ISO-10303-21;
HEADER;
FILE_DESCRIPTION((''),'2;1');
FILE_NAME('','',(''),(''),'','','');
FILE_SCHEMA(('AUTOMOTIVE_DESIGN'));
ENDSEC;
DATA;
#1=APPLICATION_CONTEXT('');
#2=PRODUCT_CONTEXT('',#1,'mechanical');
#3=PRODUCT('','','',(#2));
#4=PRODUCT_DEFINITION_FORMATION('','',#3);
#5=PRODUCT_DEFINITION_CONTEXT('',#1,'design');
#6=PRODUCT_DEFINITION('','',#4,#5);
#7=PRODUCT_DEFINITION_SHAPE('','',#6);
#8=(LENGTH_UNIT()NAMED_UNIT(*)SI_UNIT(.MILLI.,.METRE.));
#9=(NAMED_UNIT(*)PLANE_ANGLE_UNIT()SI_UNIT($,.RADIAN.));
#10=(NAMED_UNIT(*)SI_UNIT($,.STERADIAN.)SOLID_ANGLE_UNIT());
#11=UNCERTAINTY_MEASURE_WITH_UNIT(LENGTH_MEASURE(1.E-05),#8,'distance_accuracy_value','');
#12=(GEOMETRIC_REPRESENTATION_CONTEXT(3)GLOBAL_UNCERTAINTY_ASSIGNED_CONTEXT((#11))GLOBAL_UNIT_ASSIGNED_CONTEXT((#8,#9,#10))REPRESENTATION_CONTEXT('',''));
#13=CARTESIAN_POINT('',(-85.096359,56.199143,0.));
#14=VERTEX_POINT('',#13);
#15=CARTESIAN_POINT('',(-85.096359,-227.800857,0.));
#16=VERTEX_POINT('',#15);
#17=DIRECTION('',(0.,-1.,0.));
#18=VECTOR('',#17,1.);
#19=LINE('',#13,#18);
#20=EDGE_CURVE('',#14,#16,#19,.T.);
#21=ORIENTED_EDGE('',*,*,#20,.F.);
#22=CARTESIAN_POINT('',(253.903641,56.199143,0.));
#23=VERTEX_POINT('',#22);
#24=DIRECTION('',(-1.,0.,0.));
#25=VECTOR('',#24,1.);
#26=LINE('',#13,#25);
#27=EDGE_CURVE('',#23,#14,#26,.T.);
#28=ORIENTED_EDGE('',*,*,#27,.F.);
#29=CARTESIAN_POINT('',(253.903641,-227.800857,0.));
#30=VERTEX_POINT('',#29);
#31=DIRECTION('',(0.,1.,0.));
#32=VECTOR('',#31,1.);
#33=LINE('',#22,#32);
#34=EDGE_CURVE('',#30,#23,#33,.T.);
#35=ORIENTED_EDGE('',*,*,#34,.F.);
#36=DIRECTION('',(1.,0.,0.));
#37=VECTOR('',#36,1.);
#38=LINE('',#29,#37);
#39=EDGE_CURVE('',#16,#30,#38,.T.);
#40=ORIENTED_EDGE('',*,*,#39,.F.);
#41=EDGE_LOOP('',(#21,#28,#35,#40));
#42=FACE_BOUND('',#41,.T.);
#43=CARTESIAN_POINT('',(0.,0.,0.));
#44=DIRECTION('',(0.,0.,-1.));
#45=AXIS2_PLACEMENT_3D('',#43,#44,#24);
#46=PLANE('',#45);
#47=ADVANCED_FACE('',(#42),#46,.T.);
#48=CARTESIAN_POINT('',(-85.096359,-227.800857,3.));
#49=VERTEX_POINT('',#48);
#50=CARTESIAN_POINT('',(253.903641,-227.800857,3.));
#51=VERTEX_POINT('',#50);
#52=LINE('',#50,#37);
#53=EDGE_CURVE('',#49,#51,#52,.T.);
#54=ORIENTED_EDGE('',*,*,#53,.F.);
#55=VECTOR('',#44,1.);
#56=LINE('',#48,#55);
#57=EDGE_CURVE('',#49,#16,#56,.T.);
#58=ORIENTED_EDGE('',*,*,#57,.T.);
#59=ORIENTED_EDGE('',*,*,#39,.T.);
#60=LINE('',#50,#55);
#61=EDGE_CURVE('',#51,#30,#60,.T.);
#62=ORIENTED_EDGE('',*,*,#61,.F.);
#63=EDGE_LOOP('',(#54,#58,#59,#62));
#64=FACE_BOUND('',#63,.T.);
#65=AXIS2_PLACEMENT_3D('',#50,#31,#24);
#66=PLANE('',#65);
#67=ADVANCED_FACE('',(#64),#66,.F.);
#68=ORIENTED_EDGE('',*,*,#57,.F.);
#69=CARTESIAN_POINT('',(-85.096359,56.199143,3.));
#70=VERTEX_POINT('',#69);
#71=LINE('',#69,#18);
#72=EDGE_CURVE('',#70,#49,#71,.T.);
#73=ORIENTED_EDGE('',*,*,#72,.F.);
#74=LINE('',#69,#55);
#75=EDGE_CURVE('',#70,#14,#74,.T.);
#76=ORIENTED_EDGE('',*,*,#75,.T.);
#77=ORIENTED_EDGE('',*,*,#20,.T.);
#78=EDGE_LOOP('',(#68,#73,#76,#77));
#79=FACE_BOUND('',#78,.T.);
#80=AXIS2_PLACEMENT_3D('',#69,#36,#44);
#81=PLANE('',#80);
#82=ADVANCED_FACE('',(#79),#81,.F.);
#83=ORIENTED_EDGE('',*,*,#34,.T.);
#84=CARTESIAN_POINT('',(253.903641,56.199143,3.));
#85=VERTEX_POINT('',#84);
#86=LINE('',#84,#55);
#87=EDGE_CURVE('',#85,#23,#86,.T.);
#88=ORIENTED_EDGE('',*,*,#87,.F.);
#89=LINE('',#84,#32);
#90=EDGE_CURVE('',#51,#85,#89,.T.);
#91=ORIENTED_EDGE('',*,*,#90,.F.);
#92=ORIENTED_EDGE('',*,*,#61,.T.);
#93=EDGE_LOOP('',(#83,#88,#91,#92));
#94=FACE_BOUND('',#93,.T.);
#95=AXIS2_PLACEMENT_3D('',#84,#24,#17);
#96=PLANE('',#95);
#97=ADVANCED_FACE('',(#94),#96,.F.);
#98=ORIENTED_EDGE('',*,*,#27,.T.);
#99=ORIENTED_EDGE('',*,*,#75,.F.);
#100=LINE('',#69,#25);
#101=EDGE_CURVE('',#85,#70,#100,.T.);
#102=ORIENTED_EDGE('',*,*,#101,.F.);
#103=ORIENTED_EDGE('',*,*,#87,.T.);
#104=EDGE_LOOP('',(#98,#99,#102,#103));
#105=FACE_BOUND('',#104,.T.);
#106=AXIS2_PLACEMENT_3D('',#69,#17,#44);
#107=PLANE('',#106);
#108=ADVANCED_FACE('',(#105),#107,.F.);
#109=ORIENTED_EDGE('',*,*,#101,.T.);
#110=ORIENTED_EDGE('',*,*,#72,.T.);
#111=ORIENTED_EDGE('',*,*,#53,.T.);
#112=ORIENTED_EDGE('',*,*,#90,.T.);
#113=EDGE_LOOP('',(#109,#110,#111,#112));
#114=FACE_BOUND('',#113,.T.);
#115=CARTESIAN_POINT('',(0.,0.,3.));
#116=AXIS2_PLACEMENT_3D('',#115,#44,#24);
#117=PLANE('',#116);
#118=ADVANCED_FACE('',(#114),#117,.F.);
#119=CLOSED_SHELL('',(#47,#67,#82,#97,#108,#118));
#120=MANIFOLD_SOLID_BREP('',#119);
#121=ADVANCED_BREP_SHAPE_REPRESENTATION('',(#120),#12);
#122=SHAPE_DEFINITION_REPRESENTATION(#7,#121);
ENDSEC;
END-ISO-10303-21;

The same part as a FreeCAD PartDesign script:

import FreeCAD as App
import Part
import Sketcher

doc = App.newDocument("Part")
body = doc.addObject("PartDesign::Body", "Body")

# Sketch on XY plane
sketch1 = body.newObject("Sketcher::SketchObject", "Sketch")
sketch1.AttachmentSupport = (doc.getObject("XY_Plane"), [""])
sketch1.MapMode = "FlatFace"
sketch1.addGeometry([
    Part.LineSegment(App.Vector(-85, 56, 0), App.Vector(-85, -228, 0)),
    Part.LineSegment(App.Vector(-85, -228, 0), App.Vector(254, -228, 0)),
    Part.LineSegment(App.Vector(254, -228, 0), App.Vector(254, 56, 0)),
    Part.LineSegment(App.Vector(254, 56, 0), App.Vector(-85, 56, 0)),
], False)
sketch1.addConstraint([
    Sketcher.Constraint("Coincident", 0, 2, 1, 1),
    Sketcher.Constraint("Coincident", 1, 2, 2, 1),
    Sketcher.Constraint("Coincident", 2, 2, 3, 1),
    Sketcher.Constraint("Coincident", 3, 2, 0, 1),
    Sketcher.Constraint("Vertical", 0),
    Sketcher.Constraint("Horizontal", 1),
    Sketcher.Constraint("Vertical", 2),
    Sketcher.Constraint("Horizontal", 3),
    Sketcher.Constraint("DistanceX", 1, 1, 1, 2, 339.0),
    Sketcher.Constraint("DistanceY", 0, 2, 0, 1, 284.0),
    Sketcher.Constraint("DistanceX", 0, 2, -1, 1, 85.096359),
    Sketcher.Constraint("DistanceY", 0, 2, -1, 1, 227.800857),
])
pad1 = body.newObject("PartDesign::Pad", "Pad")
pad1.Profile = sketch1
pad1.Length = 3

doc.recompute()
